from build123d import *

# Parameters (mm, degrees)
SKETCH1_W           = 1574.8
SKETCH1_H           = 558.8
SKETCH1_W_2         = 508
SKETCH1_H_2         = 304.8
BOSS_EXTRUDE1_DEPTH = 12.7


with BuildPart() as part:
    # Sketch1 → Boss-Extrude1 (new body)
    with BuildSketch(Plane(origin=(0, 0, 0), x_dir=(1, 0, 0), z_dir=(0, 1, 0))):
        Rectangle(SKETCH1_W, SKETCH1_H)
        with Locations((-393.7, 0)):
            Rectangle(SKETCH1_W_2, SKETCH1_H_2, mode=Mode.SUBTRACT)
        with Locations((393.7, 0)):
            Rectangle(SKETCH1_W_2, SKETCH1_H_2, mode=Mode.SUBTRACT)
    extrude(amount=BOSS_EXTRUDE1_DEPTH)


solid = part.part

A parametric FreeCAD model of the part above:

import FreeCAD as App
import Part
import Sketcher

V = App.Vector
Q = App.Units.Quantity

doc = App.newDocument("Part")
body = doc.addObject("PartDesign::Body", "Body")

sketch1 = body.newObject("Sketcher::SketchObject", "Sketch")
sketch1.AttachmentSupport = (doc.getObject("XZ_Plane"), [""])
sketch1.MapMode = "FlatFace"
sketch1.addGeometry([
    Part.LineSegment(V(-787, -279, 0), V(-787, 279, 0)),
    Part.LineSegment(V(-787, 279, 0), V(787, 279, 0)),
    Part.LineSegment(V(787, 279, 0), V(787, -279, 0)),
    Part.LineSegment(V(787, -279, 0), V(-787, -279, 0)),
    Part.LineSegment(V(-140, 152, 0), V(-648, 152, 0)),
    Part.LineSegment(V(-648, 152, 0), V(-648, -152, 0)),
    Part.LineSegment(V(-648, -152, 0), V(-140, -152, 0)),
    Part.LineSegment(V(-140, -152, 0), V(-140, 152, 0)),
    Part.LineSegment(V(648, 152, 0), V(140, 152, 0)),
    Part.LineSegment(V(140, 152, 0), V(140, -152, 0)),
    Part.LineSegment(V(140, -152, 0), V(648, -152, 0)),
    Part.LineSegment(V(648, -152, 0), V(648, 152, 0)),
], False)
sketch1.addConstraint([
    Sketcher.Constraint("Coincident", 0, 2, 1, 1),
    Sketcher.Constraint("Coincident", 1, 2, 2, 1),
    Sketcher.Constraint("Coincident", 2, 2, 3, 1),
    Sketcher.Constraint("Coincident", 3, 2, 0, 1),
    Sketcher.Constraint("Coincident", 4, 2, 5, 1),
    Sketcher.Constraint("Coincident", 5, 2, 6, 1),
    Sketcher.Constraint("Coincident", 6, 2, 7, 1),
    Sketcher.Constraint("Coincident", 7, 2, 4, 1),
    Sketcher.Constraint("Coincident", 8, 2, 9, 1),
    Sketcher.Constraint("Coincident", 9, 2, 10, 1),
    Sketcher.Constraint("Coincident", 10, 2, 11, 1),
    Sketcher.Constraint("Coincident", 11, 2, 8, 1),
    Sketcher.Constraint("Vertical", 0),
    Sketcher.Constraint("Horizontal", 1),
    Sketcher.Constraint("Vertical", 2),
    Sketcher.Constraint("Horizontal", 3),
    Sketcher.Constraint("Horizontal", 4),
    Sketcher.Constraint("Vertical", 5),
    Sketcher.Constraint("Horizontal", 6),
    Sketcher.Constraint("Vertical", 7),
    Sketcher.Constraint("Horizontal", 8),
    Sketcher.Constraint("Vertical", 9),
    Sketcher.Constraint("Horizontal", 10),
    Sketcher.Constraint("Vertical", 11),
    Sketcher.Constraint("Symmetric", 0, 2, 2, 2, -1, 1),
    Sketcher.Constraint("Symmetric", 6, 2, 8, 2, -1, 1),
    Sketcher.Constraint("Symmetric", 4, 2, 10, 2, -1, 1),
    Sketcher.Constraint("Horizontal", 7, 2, 8, 2),
    Sketcher.Constraint("DistanceX", 1, 1, 1, 2, Q("62 in")),
    Sketcher.Constraint("DistanceX", 4, 2, 4, 1, Q("20 in")),
    Sketcher.Constraint("DistanceY", 0, 1, 0, 2, Q("22 in")),
    Sketcher.Constraint("DistanceY", 5, 2, 5, 1, Q("12 in")),
    Sketcher.Constraint("DistanceX", 7, 2, 8, 2, Q("11 in")),
])
pad1 = body.newObject("PartDesign::Pad", "Pad")
pad1.Profile = sketch1
pad1.Length = Q("0.5 in")
pad1.Reversed = True

doc.recompute()
